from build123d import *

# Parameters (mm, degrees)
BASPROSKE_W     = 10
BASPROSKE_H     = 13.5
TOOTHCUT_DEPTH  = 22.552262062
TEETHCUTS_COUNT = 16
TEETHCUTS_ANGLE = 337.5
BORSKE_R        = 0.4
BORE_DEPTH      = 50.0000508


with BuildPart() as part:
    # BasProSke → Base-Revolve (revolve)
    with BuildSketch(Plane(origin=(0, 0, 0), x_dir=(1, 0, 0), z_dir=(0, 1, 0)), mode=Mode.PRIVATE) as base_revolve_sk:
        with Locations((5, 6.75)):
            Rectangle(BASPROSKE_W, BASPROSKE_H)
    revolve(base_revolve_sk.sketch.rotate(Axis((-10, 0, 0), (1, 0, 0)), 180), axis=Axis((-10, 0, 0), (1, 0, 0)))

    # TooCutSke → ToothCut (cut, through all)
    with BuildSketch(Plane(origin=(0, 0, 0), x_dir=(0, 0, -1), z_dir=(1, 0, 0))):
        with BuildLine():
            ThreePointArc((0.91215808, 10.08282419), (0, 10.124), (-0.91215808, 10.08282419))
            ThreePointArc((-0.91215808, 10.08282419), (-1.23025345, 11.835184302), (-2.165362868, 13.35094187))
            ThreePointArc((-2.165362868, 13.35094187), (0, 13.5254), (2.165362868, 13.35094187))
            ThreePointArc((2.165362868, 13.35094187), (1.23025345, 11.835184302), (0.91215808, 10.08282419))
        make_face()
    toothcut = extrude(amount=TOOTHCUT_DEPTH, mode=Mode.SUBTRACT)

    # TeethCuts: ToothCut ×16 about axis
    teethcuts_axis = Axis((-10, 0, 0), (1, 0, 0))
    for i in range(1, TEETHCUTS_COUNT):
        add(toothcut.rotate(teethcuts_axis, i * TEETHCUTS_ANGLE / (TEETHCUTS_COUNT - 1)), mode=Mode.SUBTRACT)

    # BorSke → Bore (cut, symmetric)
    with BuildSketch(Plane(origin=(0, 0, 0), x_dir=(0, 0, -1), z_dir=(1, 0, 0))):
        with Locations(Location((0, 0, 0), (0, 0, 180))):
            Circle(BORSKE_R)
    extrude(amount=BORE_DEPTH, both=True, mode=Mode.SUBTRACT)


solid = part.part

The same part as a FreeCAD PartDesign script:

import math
import FreeCAD as App
import Part
import Sketcher

V = App.Vector
Q = App.Units.Quantity

doc = App.newDocument("Part")
body = doc.addObject("PartDesign::Body", "Body")

# Sketch on XZ plane
sketch1 = doc.addObject("Sketcher::SketchObject", "Sketch")
body.addObject(sketch1)
sketch1.AttachmentSupport = (doc.XZ_Plane, [""])
sketch1.MapMode = "FlatFace"
sketch1.addGeometry([
    Part.LineSegment(V(0, -14, 0), V(0, 0, 0)),
    Part.LineSegment(V(0, 0, 0), V(10, 0, 0)),
    Part.LineSegment(V(10, 0, 0), V(10, -14, 0)),
    Part.LineSegment(V(10, -14, 0), V(0, -14, 0)),
], False)
sketch1.addConstraint([
    Sketcher.Constraint("Coincident", 0, 2, 1, 1),
    Sketcher.Constraint("Coincident", 1, 2, 2, 1),
    Sketcher.Constraint("Coincident", 2, 2, 3, 1),
    Sketcher.Constraint("Coincident", 3, 2, 0, 1),
    Sketcher.Constraint("Vertical", 0),
    Sketcher.Constraint("Horizontal", 1),
    Sketcher.Constraint("Vertical", 2),
    Sketcher.Constraint("Horizontal", 3),
    Sketcher.Constraint("Coincident", 0, 2, -1, 1),
    Sketcher.Constraint("DistanceX", 1, 1, 1, 2, Q("10 mm")),
    Sketcher.Constraint("DistanceY", 0, 1, 0, 2, Q("13.5 mm")),
])
revolution = doc.addObject("PartDesign::Revolution", "Revolution")
body.addObject(revolution)
revolution.Profile = sketch1
revolution.ReferenceAxis = (sketch1, ["H_Axis"])
revolution.Angle = 360

# Sketch on YZ plane
sketch2 = doc.addObject("Sketcher::SketchObject", "Sketch001")
body.addObject(sketch2)
sketch2.AttachmentSupport = (doc.YZ_Plane, [""])
sketch2.MapMode = "FlatFace"
sketch2.addGeometry([
    Part.ArcOfCircle(Part.Circle(V(0, 0, 0), V(0, 0, 1), 10.1), math.radians(-5.17), math.radians(5.17)),
    Part.ArcOfCircle(Part.Circle(V(10.1, -5.7, 0), V(0, 0, 1), 4.8), math.radians(48), math.radians(90)),
    Part.ArcOfCircle(Part.Circle(V(0, 0, 0), V(0, 0, 1), 13.5), math.radians(-9.21), math.radians(9.21)),
    Part.ArcOfCircle(Part.Circle(V(10.1, 5.7, 0), V(0, 0, 1), 4.8), math.radians(-90), math.radians(-48)),
], False)
sketch2.addConstraint([
    Sketcher.Constraint("Coincident", 0, 1, 1, 2),
    Sketcher.Constraint("Coincident", 1, 1, 2, 1),
    Sketcher.Constraint("Coincident", 2, 2, 3, 2),
    Sketcher.Constraint("Coincident", 3, 1, 0, 2),
    Sketcher.Constraint("Coincident", 0, 3, -1, 1),
    Sketcher.Constraint("Coincident", 2, 3, -1, 1),
    Sketcher.Constraint("Equal", 1, 3),
    Sketcher.Constraint("Symmetric", 1, 3, 3, 3, -1),
    Sketcher.Constraint("Radius", 1, Q("4.8 mm")),
    Sketcher.Constraint("Radius", 0, Q("10.124 mm")),
    Sketcher.Constraint("Radius", 2, Q("13.5254 mm")),
    Sketcher.Constraint("DistanceX", -1, 1, 1, 3, Q("10.116582 mm")),
    Sketcher.Constraint("DistanceY", 1, 3, -1, 1, Q("5.712039 mm")),
])
pocket1 = doc.addObject("PartDesign::Pocket", "Pocket")
body.addObject(pocket1)
pocket1.Profile = sketch2
pocket1.Type = "ThroughAll"
pocket1.Reversed = True
doc.recompute()

polarpattern = doc.addObject("PartDesign::PolarPattern", "PolarPattern")
body.addObject(polarpattern)
polarpattern.Originals = [pocket1]
polarpattern.Axis = (doc.X_Axis, [""])
polarpattern.Angle = 360
polarpattern.Occurrences = 16
body.Tip = polarpattern

# Sketch on YZ plane
sketch3 = doc.addObject("Sketcher::SketchObject", "Sketch002")
body.addObject(sketch3)
sketch3.AttachmentSupport = (doc.YZ_Plane, [""])
sketch3.MapMode = "FlatFace"
sketch3.addGeometry(Part.Circle(V(0, 0, 0), V(0, 0, 1), 0.4), False)
sketch3.addConstraint([
    Sketcher.Constraint("Coincident", 0, 3, -1, 1),
    Sketcher.Constraint("Diameter", 0, Q("0.8 mm")),
])
pocket2 = doc.addObject("PartDesign::Pocket", "Pocket001")
body.addObject(pocket2)
pocket2.Profile = sketch3
pocket2.Length = 100.000102
pocket2.Midplane = True

doc.recompute()
